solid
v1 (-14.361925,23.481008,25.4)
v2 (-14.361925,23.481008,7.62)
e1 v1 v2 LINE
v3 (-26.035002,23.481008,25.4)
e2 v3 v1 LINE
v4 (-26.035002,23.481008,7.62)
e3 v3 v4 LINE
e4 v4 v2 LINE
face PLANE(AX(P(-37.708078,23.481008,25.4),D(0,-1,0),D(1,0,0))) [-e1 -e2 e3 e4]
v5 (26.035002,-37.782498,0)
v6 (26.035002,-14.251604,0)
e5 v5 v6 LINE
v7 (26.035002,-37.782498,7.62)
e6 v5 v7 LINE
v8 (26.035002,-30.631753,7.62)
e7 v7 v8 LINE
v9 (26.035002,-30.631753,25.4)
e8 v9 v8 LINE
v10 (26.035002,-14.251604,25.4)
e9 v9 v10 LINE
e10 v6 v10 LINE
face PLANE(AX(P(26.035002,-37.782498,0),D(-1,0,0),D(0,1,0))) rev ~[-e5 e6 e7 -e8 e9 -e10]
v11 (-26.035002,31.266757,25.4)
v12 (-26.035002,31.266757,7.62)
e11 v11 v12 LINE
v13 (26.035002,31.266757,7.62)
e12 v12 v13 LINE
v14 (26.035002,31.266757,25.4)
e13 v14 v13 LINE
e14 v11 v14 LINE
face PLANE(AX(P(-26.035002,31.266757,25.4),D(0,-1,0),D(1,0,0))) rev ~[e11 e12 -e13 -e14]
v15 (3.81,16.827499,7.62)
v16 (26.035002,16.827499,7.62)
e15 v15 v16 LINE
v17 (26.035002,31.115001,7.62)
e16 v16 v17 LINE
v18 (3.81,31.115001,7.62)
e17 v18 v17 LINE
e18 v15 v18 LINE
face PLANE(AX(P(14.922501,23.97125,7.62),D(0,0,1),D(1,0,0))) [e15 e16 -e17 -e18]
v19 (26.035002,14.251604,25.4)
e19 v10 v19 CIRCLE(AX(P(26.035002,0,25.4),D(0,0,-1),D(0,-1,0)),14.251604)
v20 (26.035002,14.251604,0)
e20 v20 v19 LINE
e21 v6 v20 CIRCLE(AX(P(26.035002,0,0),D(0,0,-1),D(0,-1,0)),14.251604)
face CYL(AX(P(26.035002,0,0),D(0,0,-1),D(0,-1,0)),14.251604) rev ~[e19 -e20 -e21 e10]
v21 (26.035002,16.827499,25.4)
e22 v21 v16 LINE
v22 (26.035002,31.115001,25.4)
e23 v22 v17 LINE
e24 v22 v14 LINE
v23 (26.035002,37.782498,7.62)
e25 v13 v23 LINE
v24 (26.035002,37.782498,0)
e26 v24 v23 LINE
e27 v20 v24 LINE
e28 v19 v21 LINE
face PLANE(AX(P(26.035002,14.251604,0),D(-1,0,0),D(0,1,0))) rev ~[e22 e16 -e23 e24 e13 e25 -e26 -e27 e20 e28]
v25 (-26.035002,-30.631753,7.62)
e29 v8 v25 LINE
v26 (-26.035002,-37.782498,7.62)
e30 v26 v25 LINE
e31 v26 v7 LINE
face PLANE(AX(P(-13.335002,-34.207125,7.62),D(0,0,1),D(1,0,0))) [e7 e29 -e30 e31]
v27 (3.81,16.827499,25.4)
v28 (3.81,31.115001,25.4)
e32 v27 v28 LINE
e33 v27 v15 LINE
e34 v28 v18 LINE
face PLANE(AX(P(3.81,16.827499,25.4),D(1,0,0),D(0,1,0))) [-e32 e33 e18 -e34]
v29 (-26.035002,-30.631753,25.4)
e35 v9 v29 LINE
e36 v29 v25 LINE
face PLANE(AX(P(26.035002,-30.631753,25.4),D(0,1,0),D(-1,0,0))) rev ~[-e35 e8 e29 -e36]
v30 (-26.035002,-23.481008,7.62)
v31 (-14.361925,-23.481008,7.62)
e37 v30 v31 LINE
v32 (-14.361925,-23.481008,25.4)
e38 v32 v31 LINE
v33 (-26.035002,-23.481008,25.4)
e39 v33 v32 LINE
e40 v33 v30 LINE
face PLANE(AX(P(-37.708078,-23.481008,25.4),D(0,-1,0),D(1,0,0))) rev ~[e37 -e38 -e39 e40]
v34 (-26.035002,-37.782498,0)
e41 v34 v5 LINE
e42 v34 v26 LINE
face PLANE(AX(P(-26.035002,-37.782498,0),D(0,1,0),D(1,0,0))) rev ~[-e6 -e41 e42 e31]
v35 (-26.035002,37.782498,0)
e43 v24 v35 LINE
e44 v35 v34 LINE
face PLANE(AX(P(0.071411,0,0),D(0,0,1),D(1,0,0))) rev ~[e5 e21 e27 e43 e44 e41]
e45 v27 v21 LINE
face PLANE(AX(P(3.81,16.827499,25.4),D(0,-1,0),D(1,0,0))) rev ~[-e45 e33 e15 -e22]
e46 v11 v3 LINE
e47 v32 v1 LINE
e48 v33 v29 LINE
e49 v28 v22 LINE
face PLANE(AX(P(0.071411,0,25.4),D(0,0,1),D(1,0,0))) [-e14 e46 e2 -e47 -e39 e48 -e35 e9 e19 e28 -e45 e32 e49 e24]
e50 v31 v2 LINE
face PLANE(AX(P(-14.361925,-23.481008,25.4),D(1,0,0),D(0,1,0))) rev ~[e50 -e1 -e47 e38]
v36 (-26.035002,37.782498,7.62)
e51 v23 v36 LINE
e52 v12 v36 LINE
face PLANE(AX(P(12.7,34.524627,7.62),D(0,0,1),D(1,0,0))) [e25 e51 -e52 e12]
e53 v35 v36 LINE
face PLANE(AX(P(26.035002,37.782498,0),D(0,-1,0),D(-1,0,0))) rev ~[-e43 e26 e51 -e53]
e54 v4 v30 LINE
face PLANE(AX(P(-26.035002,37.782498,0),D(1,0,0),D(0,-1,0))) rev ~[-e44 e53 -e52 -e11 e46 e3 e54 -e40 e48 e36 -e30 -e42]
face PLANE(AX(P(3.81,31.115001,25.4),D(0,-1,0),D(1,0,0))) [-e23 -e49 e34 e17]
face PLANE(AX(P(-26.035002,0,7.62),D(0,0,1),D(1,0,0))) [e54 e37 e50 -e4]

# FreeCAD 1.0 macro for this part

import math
import FreeCAD as App
import Part
import Sketcher
Q = App.Units.Quantity


def add_polygon(sketch, points):
    """Adds a closed chain of lines whose ends are joined by coincident constraints."""
    first, n = sketch.GeometryCount, len(points)
    for a, b in zip(points, points[1:] + points[:1]):
        sketch.addGeometry(Part.LineSegment(App.Vector(*a, 0), App.Vector(*b, 0)), False)
    for i in range(n):
        sketch.addConstraint(Sketcher.Constraint("Coincident", first + i, 2, first + (i + 1) % n, 1))

doc = App.newDocument("Part")
body = doc.addObject("PartDesign::Body", "Body")

# Sketch on XY plane
sketch1 = doc.addObject("Sketcher::SketchObject", "Sketch")
body.addObject(sketch1)
sketch1.AttachmentSupport = (doc.XY_Plane, [""])
sketch1.MapMode = "FlatFace"
sketch1.addGeometry(Part.LineSegment(App.Vector(26, 38, 0), App.Vector(-26, 38, 0)), False)
sketch1.addGeometry(Part.LineSegment(App.Vector(-26, 38, 0), App.Vector(-26, -38, 0)), False)
sketch1.addGeometry(Part.LineSegment(App.Vector(-26, -38, 0), App.Vector(26, -38, 0)), False)
sketch1.addGeometry(Part.LineSegment(App.Vector(26, -38, 0), App.Vector(26, -14, 0)), False)
sketch1.addGeometry(Part.ArcOfCircle(Part.Circle(App.Vector(26, 0, 0), App.Vector(0, 0, 1), 14), math.radians(90), math.radians(270)), False)
sketch1.addGeometry(Part.LineSegment(App.Vector(26, 14, 0), App.Vector(26, 38, 0)), False)
sketch1.addConstraint(Sketcher.Constraint("Coincident", 0, 2, 1, 1))
sketch1.addConstraint(Sketcher.Constraint("Coincident", 1, 2, 2, 1))
sketch1.addConstraint(Sketcher.Constraint("Coincident", 2, 2, 3, 1))
sketch1.addConstraint(Sketcher.Constraint("Coincident", 3, 2, 4, 2))
sketch1.addConstraint(Sketcher.Constraint("Coincident", 4, 1, 5, 1))
sketch1.addConstraint(Sketcher.Constraint("Coincident", 5, 2, 0, 1))
sketch1.addConstraint(Sketcher.Constraint("Horizontal", 0))
sketch1.addConstraint(Sketcher.Constraint("Vertical", 1))
sketch1.addConstraint(Sketcher.Constraint("Horizontal", 2))
sketch1.addConstraint(Sketcher.Constraint("Vertical", 3))
sketch1.addConstraint(Sketcher.Constraint("Vertical", 5))
sketch1.addConstraint(Sketcher.Constraint("Symmetric", 0, 2, 2, 2, -1, 1))
sketch1.addConstraint(Sketcher.Constraint("Symmetric", 3, 2, 4, 1, -1))
sketch1.addConstraint(Sketcher.Constraint("Vertical", 4, 3, 2, 2))
sketch1.addConstraint(Sketcher.Constraint("DistanceX", 0, 2, 0, 1, Q("2.0500001 in")))
sketch1.addConstraint(Sketcher.Constraint("DistanceY", 1, 2, 1, 1, Q("2.9749998 in")))
sketch1.addConstraint(Sketcher.Constraint("Radius", 4, Q("14.251604 mm")))
pad1 = doc.addObject("PartDesign::Pad", "Pad")
body.addObject(pad1)
pad1.Profile = sketch1
pad1.Length = Q("1 in")

# Sketch on XY plane
sketch2 = doc.addObject("Sketcher::SketchObject", "Sketch001")
body.addObject(sketch2)
sketch2.AttachmentSupport = (doc.XY_Plane, [""])
sketch2.MapMode = "FlatFace"
sketch2.AttachmentOffset = App.Placement(App.Vector(0, 0, 1 * 25.4), App.Rotation())
add_polygon(sketch2, [(-38, 23), (-38, -23), (-14, -23), (-14, 23)])  # lines 0-3
sketch2.addConstraint(Sketcher.Constraint("Vertical", 0))
sketch2.addConstraint(Sketcher.Constraint("Horizontal", 1))
sketch2.addConstraint(Sketcher.Constraint("Vertical", 2))
sketch2.addConstraint(Sketcher.Constraint("Horizontal", 3))
sketch2.addConstraint(Sketcher.Constraint("DistanceX", 1, 1, 1, 2, Q("23.346152 mm")))
sketch2.addConstraint(Sketcher.Constraint("DistanceY", 0, 2, 0, 1, Q("46.962015 mm")))
sketch2.addConstraint(Sketcher.Constraint("DistanceX", 0, 2, -1, 1, Q("37.708078 mm")))
sketch2.addConstraint(Sketcher.Constraint("DistanceY", 0, 2, -1, 1, Q("23.481008 mm")))
pocket1 = doc.addObject("PartDesign::Pocket", "Pocket")
body.addObject(pocket1)
pocket1.Profile = sketch2
pocket1.Length = Q("0.7 in")

# Sketch on XY plane
sketch3 = doc.addObject("Sketcher::SketchObject", "Sketch002")
body.addObject(sketch3)
sketch3.AttachmentSupport = (doc.XY_Plane, [""])
sketch3.MapMode = "FlatFace"
sketch3.AttachmentOffset = App.Placement(App.Vector(0, 0, 1 * 25.4), App.Rotation())
add_polygon(sketch3, [(-26, -31), (-26, -38), (26, -38), (26, -31)])  # lines 0-3
sketch3.addConstraint(Sketcher.Constraint("Vertical", 0))
sketch3.addConstraint(Sketcher.Constraint("Horizontal", 1))
sketch3.addConstraint(Sketcher.Constraint("Vertical", 2))
sketch3.addConstraint(Sketcher.Constraint("Horizontal", 3))
sketch3.addConstraint(Sketcher.Constraint("DistanceX", 1, 1, 1, 2, Q("2.0500001 in")))
sketch3.addConstraint(Sketcher.Constraint("DistanceX", 0, 2, -1, 1, Q("1.0250001 in")))
sketch3.addConstraint(Sketcher.Constraint("DistanceY", 0, 2, -1, 1, Q("1.4874999 in")))
sketch3.addConstraint(Sketcher.Constraint("DistanceY", 0, 2, 0, 1, Q("7.150745 mm")))
pocket2 = doc.addObject("PartDesign::Pocket", "Pocket001")
body.addObject(pocket2)
pocket2.Profile = sketch3
pocket2.Length = Q("0.7 in")

# Sketch on XY plane
sketch4 = doc.addObject("Sketcher::SketchObject", "Sketch003")
body.addObject(sketch4)
sketch4.AttachmentSupport = (doc.XY_Plane, [""])
sketch4.MapMode = "FlatFace"
sketch4.AttachmentOffset = App.Placement(App.Vector(0, 0, 1 * 25.4), App.Rotation())
add_polygon(sketch4, [(26, 31), (26, 38), (-26, 38), (-26, 31)])  # lines 0-3
sketch4.addConstraint(Sketcher.Constraint("Vertical", 0))
sketch4.addConstraint(Sketcher.Constraint("Horizontal", 1))
sketch4.addConstraint(Sketcher.Constraint("Vertical", 2))
sketch4.addConstraint(Sketcher.Constraint("Horizontal", 3))
sketch4.addConstraint(Sketcher.Constraint("DistanceX", 1, 2, 1, 1, Q("2.0500001 in")))
sketch4.addConstraint(Sketcher.Constraint("DistanceX", -1, 1, 0, 2, Q("1.0250001 in")))
sketch4.addConstraint(Sketcher.Constraint("DistanceY", -1, 1, 0, 2, Q("1.4874999 in")))
sketch4.addConstraint(Sketcher.Constraint("DistanceY", 0, 1, 0, 2, Q("6.51574 mm")))
pocket3 = doc.addObject("PartDesign::Pocket", "Pocket002")
body.addObject(pocket3)
pocket3.Profile = sketch4
pocket3.Length = Q("0.7 in")

# Sketch on XY plane
sketch5 = doc.addObject("Sketcher::SketchObject", "Sketch004")
body.addObject(sketch5)
sketch5.AttachmentSupport = (doc.XY_Plane, [""])
sketch5.MapMode = "FlatFace"
sketch5.AttachmentOffset = App.Placement(App.Vector(0, 0, 1 * 25.4), App.Rotation())
add_polygon(sketch5, [(4, 31), (4, 17), (26, 17), (26, 31)])  # lines 0-3
sketch5.addConstraint(Sketcher.Constraint("Vertical", 0))
sketch5.addConstraint(Sketcher.Constraint("Horizontal", 1))
sketch5.addConstraint(Sketcher.Constraint("Vertical", 2))
sketch5.addConstraint(Sketcher.Constraint("Horizontal", 3))
sketch5.addConstraint(Sketcher.Constraint("DistanceX", 1, 1, 1, 2, Q("0.8750001 in")))
sketch5.addConstraint(Sketcher.Constraint("DistanceY", 0, 2, 0, 1, Q("0.5625001 in")))
sketch5.addConstraint(Sketcher.Constraint("DistanceX", -1, 1, 0, 2, Q("0.15 in")))
sketch5.addConstraint(Sketcher.Constraint("DistanceY", -1, 1, 2, 2, Q("1.225 in")))
pocket4 = doc.addObject("PartDesign::Pocket", "Pocket003")
body.addObject(pocket4)
pocket4.Profile = sketch5
pocket4.Length = Q("0.7 in")

doc.recompute()
